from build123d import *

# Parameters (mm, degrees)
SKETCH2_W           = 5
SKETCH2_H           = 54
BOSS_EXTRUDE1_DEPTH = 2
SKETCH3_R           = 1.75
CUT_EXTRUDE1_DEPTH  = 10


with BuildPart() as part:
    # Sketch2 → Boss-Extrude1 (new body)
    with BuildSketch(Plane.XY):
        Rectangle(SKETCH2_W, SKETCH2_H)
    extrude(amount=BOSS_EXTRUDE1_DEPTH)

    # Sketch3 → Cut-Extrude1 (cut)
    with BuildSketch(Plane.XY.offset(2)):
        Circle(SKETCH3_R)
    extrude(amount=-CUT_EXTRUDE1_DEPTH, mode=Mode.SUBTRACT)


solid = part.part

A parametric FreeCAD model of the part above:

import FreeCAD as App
import Part
import Sketcher

V = App.Vector
Q = App.Units.Quantity


def add_polygon(sketch, points):
    """Adds a closed chain of lines whose ends are joined by coincident constraints."""
    first, n = sketch.GeometryCount, len(points)
    for a, b in zip(points, points[1:] + points[:1]):
        sketch.addGeometry(Part.LineSegment(App.Vector(*a, 0), App.Vector(*b, 0)), False)
    for i in range(n):
        sketch.addConstraint(Sketcher.Constraint("Coincident", first + i, 2, first + (i + 1) % n, 1))

doc = App.newDocument("Part")
body = doc.addObject("PartDesign::Body", "Body")

# Sketch on XY plane
sketch1 = body.newObject("Sketcher::SketchObject", "Sketch")
sketch1.AttachmentSupport = (doc.getObject("XY_Plane"), [""])
sketch1.MapMode = "FlatFace"
add_polygon(sketch1, [(-2, 27), (-2, -27), (2, -27), (2, 27)])  # lines 0-3
sketch1.addConstraint([
    Sketcher.Constraint("Vertical", 0),
    Sketcher.Constraint("Horizontal", 1),
    Sketcher.Constraint("Vertical", 2),
    Sketcher.Constraint("Horizontal", 3),
    Sketcher.Constraint("Symmetric", 0, 2, 2, 2, -1, 1),
    Sketcher.Constraint("DistanceX", 1, 1, 1, 2, Q("5 mm")),
    Sketcher.Constraint("DistanceY", 0, 2, 0, 1, Q("54 mm")),
])
pad1 = body.newObject("PartDesign::Pad", "Pad")
pad1.Profile = sketch1
pad1.Length = 2

# Sketch on XY plane
sketch2 = body.newObject("Sketcher::SketchObject", "Sketch001")
sketch2.AttachmentSupport = (doc.getObject("XY_Plane"), [""])
sketch2.MapMode = "FlatFace"
sketch2.AttachmentOffset = App.Placement(V(0, 0, 2), App.Rotation())
sketch2.addGeometry(Part.Circle(V(0, 0, 0), V(0, 0, 1), 1.8), False)
sketch2.addConstraint([
    Sketcher.Constraint("Coincident", 0, 3, -1, 1),
    Sketcher.Constraint("Diameter", 0, Q("3.5 mm")),
])
pocket1 = body.newObject("PartDesign::Pocket", "Pocket")
pocket1.Profile = sketch2
pocket1.Length = 10

doc.recompute()
